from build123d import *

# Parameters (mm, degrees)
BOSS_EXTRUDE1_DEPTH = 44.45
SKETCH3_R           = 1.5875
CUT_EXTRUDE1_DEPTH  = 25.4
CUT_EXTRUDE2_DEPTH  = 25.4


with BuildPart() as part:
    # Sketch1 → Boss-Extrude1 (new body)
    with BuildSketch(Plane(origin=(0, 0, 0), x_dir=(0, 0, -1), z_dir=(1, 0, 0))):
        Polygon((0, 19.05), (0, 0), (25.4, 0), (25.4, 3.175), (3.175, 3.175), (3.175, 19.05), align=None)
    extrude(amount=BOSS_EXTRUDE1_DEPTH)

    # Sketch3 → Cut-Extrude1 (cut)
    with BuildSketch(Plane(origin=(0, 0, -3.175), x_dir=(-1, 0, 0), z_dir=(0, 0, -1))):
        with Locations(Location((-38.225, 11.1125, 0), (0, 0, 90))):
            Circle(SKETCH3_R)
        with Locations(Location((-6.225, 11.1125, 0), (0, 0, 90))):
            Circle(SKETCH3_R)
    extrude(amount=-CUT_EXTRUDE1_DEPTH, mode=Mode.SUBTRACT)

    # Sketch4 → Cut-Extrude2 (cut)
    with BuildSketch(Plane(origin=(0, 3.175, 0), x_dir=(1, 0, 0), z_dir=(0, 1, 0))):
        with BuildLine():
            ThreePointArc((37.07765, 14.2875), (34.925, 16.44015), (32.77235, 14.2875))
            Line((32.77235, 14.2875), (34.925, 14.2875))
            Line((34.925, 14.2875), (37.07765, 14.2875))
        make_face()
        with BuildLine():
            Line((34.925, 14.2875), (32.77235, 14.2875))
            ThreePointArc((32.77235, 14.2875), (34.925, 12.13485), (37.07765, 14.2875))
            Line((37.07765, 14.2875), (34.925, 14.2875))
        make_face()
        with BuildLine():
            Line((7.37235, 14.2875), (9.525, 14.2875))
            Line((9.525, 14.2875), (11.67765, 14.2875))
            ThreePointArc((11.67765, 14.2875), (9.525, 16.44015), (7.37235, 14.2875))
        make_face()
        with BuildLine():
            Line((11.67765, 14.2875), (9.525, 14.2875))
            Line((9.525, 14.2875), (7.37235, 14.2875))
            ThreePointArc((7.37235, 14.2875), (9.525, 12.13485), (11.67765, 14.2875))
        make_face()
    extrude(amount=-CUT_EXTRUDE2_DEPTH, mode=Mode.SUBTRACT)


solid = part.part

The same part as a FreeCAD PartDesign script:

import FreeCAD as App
import Part
import Sketcher

V = App.Vector
Q = App.Units.Quantity

doc = App.newDocument("Part")
body = doc.addObject("PartDesign::Body", "Body")

sketch1 = body.newObject("Sketcher::SketchObject", "Sketch")
sketch1.AttachmentSupport = (doc.getObject("YZ_Plane"), [""])
sketch1.MapMode = "FlatFace"
sketch1.addGeometry([
    Part.LineSegment(V(19.1, 0, 0), V(0, 0, 0)),
    Part.LineSegment(V(0, 0, 0), V(0, -25.4, 0)),
    Part.LineSegment(V(0, -25.4, 0), V(3.2, -25.4, 0)),
    Part.LineSegment(V(3.2, -25.4, 0), V(3.2, -3.2, 0)),
    Part.LineSegment(V(3.2, -3.2, 0), V(19.1, -3.2, 0)),
    Part.LineSegment(V(19.1, -3.2, 0), V(19.1, 0, 0)),
], False)
sketch1.addConstraint([
    Sketcher.Constraint("Coincident", 0, 2, 1, 1),
    Sketcher.Constraint("Coincident", 1, 2, 2, 1),
    Sketcher.Constraint("Coincident", 2, 2, 3, 1),
    Sketcher.Constraint("Coincident", 3, 2, 4, 1),
    Sketcher.Constraint("Coincident", 4, 2, 5, 1),
    Sketcher.Constraint("Coincident", 5, 2, 0, 1),
    Sketcher.Constraint("Horizontal", 0),
    Sketcher.Constraint("Vertical", 1),
    Sketcher.Constraint("Horizontal", 2),
    Sketcher.Constraint("Vertical", 3),
    Sketcher.Constraint("Horizontal", 4),
    Sketcher.Constraint("Vertical", 5),
    Sketcher.Constraint("Coincident", 0, 2, -1, 1),
    Sketcher.Constraint("Equal", 2, 5),
    Sketcher.Constraint("DistanceY", 1, 2, 1, 1, Q("1 in")),
    Sketcher.Constraint("DistanceX", 0, 2, 0, 1, Q("0.75 in")),
    Sketcher.Constraint("DistanceX", 2, 1, 2, 2, Q("0.125 in")),
])
pad1 = body.newObject("PartDesign::Pad", "Pad")
pad1.Profile = sketch1
pad1.Length = Q("1.75 in")

sketch2 = body.newObject("Sketcher::SketchObject", "Sketch001")
sketch2.AttachmentSupport = (doc.getObject("XY_Plane"), [""])
sketch2.MapMode = "FlatFace"
sketch2.AttachmentOffset = App.Placement(V(0, 0, -0.125 * 25.4), App.Rotation())
sketch2.addGeometry([
    Part.Circle(V(38.2, 11.1, 0), V(0, 0, 1), 1.6),
    Part.Circle(V(6.2, 11.1, 0), V(0, 0, 1), 1.6),
], False)
sketch2.addConstraint([
    Sketcher.Constraint("Equal", 0, 1),
    Sketcher.Constraint("Horizontal", 0, 3, 1, 3),
    Sketcher.Constraint("Diameter", 0, Q("0.125 in")),
    Sketcher.Constraint("DistanceY", -1, 1, 0, 3, Q("0.4375 in")),
    Sketcher.Constraint("DistanceX", -1, 1, 0, 3, 38.225),
    Sketcher.Constraint("DistanceX", -1, 1, 1, 3, 6.225),
])
pocket1 = body.newObject("PartDesign::Pocket", "Pocket")
pocket1.Profile = sketch2
pocket1.Length = Q("1 in")
pocket1.Reversed = True

sketch3 = body.newObject("Sketcher::SketchObject", "Sketch002")
sketch3.AttachmentSupport = (doc.getObject("XZ_Plane"), [""])
sketch3.MapMode = "FlatFace"
sketch3.AttachmentOffset = App.Placement(V(0, 0, -0.125 * 25.4), App.Rotation())
sketch3.addGeometry([
    Part.Circle(V(34.9, -14.3, 0), V(0, 0, 1), 2.2),
    Part.Circle(V(9.5, -14.3, 0), V(0, 0, 1), 2.2),
], False)
sketch3.addConstraint([
    Sketcher.Constraint("Equal", 0, 1),
    Sketcher.Constraint("Horizontal", 0, 3, 1, 3),
    Sketcher.Constraint("DistanceX", 1, 3, 0, 3, Q("1 in")),
    Sketcher.Constraint("Diameter", 0, Q("0.1695 in")),
    Sketcher.Constraint("DistanceX", -1, 1, 0, 3, Q("1.375 in")),
    Sketcher.Constraint("DistanceY", 0, 3, -1, 1, Q("0.5625 in")),
])
pocket2 = body.newObject("PartDesign::Pocket", "Pocket001")
pocket2.Profile = sketch3
pocket2.Length = Q("1 in")
pocket2.Reversed = True

doc.recompute()
